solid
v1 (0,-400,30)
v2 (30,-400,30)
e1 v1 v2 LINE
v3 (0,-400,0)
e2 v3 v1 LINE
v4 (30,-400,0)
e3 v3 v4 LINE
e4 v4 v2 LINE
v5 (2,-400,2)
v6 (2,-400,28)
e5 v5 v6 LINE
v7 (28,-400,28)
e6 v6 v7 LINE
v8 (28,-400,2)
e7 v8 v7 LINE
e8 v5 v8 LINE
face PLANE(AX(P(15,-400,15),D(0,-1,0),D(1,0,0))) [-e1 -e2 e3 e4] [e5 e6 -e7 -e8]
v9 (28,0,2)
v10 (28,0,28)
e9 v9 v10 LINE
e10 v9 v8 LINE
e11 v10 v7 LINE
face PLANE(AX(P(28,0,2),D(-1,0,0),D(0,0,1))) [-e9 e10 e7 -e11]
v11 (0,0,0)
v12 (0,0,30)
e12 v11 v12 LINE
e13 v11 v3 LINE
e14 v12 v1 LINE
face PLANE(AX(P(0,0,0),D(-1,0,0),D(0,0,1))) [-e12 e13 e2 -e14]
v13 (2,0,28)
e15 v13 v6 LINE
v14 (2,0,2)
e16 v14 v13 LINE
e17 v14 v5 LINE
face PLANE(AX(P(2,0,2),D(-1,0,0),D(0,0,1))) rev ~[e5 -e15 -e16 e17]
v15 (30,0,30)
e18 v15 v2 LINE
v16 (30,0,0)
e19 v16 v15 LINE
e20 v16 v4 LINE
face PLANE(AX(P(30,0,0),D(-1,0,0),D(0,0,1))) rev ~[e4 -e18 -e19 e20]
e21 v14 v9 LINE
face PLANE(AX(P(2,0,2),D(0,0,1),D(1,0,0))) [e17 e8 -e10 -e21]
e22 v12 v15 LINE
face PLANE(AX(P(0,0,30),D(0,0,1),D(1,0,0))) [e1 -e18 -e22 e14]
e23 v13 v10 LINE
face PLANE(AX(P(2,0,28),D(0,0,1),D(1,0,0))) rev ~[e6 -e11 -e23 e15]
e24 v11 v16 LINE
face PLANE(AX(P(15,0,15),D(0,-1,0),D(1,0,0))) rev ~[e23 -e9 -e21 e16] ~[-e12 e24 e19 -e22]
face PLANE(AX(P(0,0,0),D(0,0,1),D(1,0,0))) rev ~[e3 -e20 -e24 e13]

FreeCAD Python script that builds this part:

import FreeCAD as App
import Part
import Sketcher

V = App.Vector
Q = App.Units.Quantity

doc = App.newDocument("Part")
body = doc.addObject("PartDesign::Body", "Body")

sketch1 = body.newObject("Sketcher::SketchObject", "Sketch")
sketch1.AttachmentSupport = (doc.getObject("XZ_Plane"), [""])
sketch1.MapMode = "FlatFace"
sketch1.addGeometry([
    Part.LineSegment(V(0, 30, 0), V(0, 0, 0)),
    Part.LineSegment(V(0, 0, 0), V(30, 0, 0)),
    Part.LineSegment(V(30, 0, 0), V(30, 30, 0)),
    Part.LineSegment(V(30, 30, 0), V(0, 30, 0)),
    Part.LineSegment(V(28, 2, 0), V(2, 2, 0)),
    Part.LineSegment(V(2, 2, 0), V(2, 28, 0)),
    Part.LineSegment(V(2, 28, 0), V(28, 28, 0)),
    Part.LineSegment(V(28, 28, 0), V(28, 2, 0)),
], False)
sketch1.addConstraint([
    Sketcher.Constraint("Coincident", 0, 2, 1, 1),
    Sketcher.Constraint("Coincident", 1, 2, 2, 1),
    Sketcher.Constraint("Coincident", 2, 2, 3, 1),
    Sketcher.Constraint("Coincident", 3, 2, 0, 1),
    Sketcher.Constraint("Coincident", 4, 2, 5, 1),
    Sketcher.Constraint("Coincident", 5, 2, 6, 1),
    Sketcher.Constraint("Coincident", 6, 2, 7, 1),
    Sketcher.Constraint("Coincident", 7, 2, 4, 1),
    Sketcher.Constraint("Vertical", 0),
    Sketcher.Constraint("Horizontal", 1),
    Sketcher.Constraint("Vertical", 2),
    Sketcher.Constraint("Horizontal", 3),
    Sketcher.Constraint("Horizontal", 4),
    Sketcher.Constraint("Vertical", 5),
    Sketcher.Constraint("Horizontal", 6),
    Sketcher.Constraint("Vertical", 7),
    Sketcher.Constraint("Coincident", 0, 2, -1, 1),
    Sketcher.Constraint("Equal", 3, 0),
    Sketcher.Constraint("Equal", 6, 5),
    Sketcher.Constraint("DistanceX", 1, 1, 1, 2, Q("30 mm")),
    Sketcher.Constraint("DistanceX", 4, 2, 4, 1, Q("26 mm")),
    Sketcher.Constraint("DistanceX", -1, 1, 4, 2, Q("2 mm")),
    Sketcher.Constraint("DistanceY", -1, 1, 4, 2, Q("2 mm")),
])
pad1 = body.newObject("PartDesign::Pad", "Pad")
pad1.Profile = sketch1
pad1.Length = 400

doc.recompute()
